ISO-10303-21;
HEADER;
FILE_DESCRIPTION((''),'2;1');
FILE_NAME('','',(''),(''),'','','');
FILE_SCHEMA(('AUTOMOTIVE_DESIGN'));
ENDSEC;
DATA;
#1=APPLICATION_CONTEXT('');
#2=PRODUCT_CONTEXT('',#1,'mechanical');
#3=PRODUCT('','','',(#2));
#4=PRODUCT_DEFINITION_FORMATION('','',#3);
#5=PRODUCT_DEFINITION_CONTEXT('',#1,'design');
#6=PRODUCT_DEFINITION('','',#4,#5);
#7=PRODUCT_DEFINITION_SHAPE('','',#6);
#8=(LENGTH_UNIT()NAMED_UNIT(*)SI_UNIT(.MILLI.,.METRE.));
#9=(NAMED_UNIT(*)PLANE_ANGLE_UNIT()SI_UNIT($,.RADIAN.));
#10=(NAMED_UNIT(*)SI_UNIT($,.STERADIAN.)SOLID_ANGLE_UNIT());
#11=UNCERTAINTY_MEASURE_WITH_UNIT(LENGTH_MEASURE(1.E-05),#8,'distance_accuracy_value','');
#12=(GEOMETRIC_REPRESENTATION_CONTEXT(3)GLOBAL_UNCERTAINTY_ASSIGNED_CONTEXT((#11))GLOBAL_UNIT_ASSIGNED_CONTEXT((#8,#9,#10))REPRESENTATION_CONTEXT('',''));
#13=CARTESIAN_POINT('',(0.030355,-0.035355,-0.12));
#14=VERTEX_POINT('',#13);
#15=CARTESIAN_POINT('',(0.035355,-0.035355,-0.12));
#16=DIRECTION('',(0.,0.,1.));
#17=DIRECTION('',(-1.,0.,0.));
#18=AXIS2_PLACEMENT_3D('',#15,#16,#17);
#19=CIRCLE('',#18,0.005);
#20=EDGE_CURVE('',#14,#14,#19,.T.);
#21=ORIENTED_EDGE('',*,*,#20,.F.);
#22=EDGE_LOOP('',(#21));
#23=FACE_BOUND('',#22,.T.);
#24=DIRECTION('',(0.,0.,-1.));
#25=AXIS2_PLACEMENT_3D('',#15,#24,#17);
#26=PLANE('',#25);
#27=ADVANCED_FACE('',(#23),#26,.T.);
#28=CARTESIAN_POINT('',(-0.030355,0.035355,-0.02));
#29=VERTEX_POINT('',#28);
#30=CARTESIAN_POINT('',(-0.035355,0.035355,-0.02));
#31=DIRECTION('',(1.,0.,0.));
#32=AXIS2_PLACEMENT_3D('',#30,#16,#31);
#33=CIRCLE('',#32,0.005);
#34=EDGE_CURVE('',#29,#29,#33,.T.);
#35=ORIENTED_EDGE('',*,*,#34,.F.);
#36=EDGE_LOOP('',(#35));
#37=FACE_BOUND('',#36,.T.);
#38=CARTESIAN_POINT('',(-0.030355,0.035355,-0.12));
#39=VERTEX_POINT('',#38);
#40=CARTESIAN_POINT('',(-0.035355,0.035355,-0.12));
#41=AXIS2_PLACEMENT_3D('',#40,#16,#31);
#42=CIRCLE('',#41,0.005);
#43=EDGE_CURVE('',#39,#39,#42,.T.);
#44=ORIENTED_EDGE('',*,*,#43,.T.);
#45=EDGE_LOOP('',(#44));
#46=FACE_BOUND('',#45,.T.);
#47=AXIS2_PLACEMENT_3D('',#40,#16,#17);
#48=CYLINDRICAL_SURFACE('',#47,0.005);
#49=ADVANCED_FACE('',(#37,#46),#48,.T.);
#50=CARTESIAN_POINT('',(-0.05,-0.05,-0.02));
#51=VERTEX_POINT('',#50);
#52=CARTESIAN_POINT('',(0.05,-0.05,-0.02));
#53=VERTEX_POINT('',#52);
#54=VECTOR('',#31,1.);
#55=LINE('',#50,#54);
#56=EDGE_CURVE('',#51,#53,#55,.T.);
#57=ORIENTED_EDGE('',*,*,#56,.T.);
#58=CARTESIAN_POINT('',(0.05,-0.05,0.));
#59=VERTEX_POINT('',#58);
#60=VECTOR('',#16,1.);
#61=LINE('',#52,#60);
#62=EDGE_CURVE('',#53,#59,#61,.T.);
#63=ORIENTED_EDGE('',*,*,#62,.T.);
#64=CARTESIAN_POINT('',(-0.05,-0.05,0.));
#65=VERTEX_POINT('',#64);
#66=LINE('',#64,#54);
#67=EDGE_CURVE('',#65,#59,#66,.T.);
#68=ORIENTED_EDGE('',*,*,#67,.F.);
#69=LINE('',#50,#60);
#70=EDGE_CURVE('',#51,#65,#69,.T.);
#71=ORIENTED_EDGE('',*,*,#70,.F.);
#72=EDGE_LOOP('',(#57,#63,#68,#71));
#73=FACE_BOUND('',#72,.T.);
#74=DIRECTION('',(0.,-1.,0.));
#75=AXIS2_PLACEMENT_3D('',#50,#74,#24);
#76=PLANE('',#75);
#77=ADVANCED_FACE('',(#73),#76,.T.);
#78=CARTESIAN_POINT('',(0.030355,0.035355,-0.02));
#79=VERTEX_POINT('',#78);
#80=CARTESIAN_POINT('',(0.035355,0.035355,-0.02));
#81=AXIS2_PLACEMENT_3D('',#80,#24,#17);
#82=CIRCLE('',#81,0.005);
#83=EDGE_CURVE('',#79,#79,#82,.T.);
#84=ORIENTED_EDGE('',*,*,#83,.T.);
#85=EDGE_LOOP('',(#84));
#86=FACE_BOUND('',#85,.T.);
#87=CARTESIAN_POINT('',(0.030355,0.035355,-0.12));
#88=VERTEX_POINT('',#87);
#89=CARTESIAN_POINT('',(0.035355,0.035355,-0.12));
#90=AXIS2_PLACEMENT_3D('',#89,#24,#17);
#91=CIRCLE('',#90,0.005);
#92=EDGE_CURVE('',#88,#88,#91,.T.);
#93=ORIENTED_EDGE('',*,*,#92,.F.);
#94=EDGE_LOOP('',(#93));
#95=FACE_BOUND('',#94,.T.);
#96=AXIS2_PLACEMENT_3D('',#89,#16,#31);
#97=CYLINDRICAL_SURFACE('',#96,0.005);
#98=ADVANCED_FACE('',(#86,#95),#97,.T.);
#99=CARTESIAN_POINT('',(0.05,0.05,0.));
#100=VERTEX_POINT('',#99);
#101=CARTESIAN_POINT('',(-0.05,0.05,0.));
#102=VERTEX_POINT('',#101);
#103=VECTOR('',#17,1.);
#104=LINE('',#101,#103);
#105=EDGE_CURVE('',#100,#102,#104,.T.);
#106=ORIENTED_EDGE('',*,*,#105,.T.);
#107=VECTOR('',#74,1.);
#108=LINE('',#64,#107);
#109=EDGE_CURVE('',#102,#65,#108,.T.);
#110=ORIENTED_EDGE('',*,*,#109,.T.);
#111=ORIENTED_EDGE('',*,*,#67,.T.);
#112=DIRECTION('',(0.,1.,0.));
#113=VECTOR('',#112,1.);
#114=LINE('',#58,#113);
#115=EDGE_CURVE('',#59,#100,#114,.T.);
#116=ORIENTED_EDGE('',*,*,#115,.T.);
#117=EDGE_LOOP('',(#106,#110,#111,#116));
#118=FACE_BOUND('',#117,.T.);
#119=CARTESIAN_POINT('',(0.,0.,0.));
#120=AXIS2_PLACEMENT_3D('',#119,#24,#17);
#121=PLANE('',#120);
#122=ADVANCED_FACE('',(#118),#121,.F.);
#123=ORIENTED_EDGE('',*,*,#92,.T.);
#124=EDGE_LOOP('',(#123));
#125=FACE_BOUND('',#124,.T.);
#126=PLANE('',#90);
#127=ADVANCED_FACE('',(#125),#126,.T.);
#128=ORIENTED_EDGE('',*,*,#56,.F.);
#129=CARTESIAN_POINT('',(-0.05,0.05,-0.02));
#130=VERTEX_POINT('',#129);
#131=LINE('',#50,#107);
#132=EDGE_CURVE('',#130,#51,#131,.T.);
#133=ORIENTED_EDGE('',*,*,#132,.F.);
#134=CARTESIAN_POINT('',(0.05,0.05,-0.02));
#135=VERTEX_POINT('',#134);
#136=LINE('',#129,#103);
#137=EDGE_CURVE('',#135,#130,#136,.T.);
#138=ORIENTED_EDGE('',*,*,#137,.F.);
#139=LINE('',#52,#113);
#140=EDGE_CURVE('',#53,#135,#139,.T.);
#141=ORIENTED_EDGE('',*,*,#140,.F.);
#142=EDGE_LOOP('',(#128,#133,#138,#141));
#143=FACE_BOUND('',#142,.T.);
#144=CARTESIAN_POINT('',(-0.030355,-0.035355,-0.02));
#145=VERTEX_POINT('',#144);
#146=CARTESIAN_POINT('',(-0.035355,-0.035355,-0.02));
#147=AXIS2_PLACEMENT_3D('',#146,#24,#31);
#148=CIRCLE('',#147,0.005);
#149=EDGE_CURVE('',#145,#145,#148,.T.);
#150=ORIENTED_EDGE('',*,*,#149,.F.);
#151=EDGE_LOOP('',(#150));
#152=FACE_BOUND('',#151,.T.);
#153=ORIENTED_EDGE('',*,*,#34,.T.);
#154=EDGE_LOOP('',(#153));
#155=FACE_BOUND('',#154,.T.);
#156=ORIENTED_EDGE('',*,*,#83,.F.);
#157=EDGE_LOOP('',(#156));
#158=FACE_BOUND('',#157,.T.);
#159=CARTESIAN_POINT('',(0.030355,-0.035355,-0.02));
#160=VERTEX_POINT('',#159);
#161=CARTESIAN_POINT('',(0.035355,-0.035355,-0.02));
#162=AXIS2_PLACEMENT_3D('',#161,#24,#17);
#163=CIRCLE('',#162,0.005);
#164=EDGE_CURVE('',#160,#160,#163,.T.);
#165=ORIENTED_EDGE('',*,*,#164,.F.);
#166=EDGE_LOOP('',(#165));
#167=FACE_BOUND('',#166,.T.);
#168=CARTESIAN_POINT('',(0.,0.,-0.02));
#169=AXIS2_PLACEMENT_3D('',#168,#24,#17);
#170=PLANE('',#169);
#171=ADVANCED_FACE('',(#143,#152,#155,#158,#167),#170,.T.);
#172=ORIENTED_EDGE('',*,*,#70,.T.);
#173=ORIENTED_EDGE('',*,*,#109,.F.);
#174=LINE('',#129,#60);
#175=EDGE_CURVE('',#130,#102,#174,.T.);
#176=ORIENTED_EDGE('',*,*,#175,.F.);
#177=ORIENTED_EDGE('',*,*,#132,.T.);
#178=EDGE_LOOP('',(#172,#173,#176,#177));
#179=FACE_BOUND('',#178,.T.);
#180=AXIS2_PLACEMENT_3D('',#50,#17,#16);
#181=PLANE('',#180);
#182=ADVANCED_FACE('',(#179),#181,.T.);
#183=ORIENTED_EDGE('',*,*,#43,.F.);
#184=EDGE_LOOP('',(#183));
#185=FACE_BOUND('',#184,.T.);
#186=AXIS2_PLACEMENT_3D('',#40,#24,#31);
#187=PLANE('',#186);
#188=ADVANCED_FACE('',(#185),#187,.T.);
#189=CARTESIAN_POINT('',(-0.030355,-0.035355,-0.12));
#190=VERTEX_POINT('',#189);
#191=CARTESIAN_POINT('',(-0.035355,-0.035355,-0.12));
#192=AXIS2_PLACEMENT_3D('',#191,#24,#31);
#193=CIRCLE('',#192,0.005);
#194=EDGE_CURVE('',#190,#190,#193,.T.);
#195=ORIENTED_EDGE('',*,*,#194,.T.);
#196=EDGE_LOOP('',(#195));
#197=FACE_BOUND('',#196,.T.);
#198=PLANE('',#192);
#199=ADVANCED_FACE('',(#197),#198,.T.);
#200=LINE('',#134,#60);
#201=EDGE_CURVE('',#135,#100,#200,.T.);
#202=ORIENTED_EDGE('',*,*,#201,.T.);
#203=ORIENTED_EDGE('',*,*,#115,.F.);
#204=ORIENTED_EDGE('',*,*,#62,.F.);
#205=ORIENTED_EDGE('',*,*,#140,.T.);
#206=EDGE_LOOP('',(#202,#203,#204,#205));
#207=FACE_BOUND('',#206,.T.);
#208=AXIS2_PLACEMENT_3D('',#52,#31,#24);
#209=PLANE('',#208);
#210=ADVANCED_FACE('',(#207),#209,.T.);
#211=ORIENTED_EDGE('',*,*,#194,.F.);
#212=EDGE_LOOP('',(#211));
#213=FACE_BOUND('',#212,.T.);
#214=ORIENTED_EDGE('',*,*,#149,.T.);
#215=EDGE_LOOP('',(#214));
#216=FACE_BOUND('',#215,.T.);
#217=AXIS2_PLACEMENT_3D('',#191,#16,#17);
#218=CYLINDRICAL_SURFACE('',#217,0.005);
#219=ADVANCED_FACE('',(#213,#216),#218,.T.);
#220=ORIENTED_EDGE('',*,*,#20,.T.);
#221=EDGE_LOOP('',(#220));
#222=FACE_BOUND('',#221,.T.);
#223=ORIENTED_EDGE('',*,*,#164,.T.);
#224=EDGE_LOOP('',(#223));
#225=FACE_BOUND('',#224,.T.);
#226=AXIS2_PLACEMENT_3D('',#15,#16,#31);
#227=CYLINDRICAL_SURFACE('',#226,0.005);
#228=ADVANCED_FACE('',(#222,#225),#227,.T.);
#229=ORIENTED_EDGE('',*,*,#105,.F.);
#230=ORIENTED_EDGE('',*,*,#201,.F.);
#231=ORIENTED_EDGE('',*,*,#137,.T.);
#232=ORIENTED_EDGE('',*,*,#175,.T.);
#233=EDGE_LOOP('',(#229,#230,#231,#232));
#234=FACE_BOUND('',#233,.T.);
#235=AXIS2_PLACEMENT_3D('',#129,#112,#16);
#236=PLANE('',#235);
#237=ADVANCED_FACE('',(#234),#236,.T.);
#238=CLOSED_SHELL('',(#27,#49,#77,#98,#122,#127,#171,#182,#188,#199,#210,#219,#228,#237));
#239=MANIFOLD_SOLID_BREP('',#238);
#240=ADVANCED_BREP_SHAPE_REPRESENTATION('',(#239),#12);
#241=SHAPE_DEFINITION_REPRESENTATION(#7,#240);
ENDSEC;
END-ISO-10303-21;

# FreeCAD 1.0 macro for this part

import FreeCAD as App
import Part
import Sketcher

V = App.Vector
Q = App.Units.Quantity


def add_polygon(sketch, points):
    """Adds a closed chain of lines whose ends are joined by coincident constraints."""
    first, n = sketch.GeometryCount, len(points)
    for a, b in zip(points, points[1:] + points[:1]):
        sketch.addGeometry(Part.LineSegment(App.Vector(*a, 0), App.Vector(*b, 0)), False)
    for i in range(n):
        sketch.addConstraint(Sketcher.Constraint("Coincident", first + i, 2, first + (i + 1) % n, 1))

doc = App.newDocument("Part")
params = doc.addObject("Spreadsheet::Sheet", "Params")
for row, (alias, value) in enumerate([
    ("sketch1_width", "0.1 mm"),
    ("pad1_length", "0.02 mm"),
    ("sketch2_diameter", "0.01 mm"),
    ("pad2_length", "0.1 mm"),
    ("sketch3_diameter", "0.01 mm"),
    ("pad3_length", "0.1 mm"),
], start=1):
    params.set(f"A{row}", alias)
    params.set(f"B{row}", "=" + value)
    params.setAlias(f"B{row}", alias)

body = doc.addObject("PartDesign::Body", "Body")

# Sketch on XY plane
sketch1 = body.newObject("Sketcher::SketchObject", "Sketch")
sketch1.AttachmentSupport = (doc.getObject("XY_Plane"), [""])
sketch1.MapMode = "FlatFace"
add_polygon(sketch1, [(-0.05, 0.05), (-0.05, -0.05), (0.05, -0.05), (0.05, 0.05)])  # lines 0-3
sketch1.addConstraint([
    Sketcher.Constraint("Vertical", 0),
    Sketcher.Constraint("Horizontal", 1),
    Sketcher.Constraint("Vertical", 2),
    Sketcher.Constraint("Horizontal", 3),
    Sketcher.Constraint("Symmetric", 0, 2, 2, 2, -1, 1),
    Sketcher.Constraint("Equal", 3, 0),
    Sketcher.Constraint("DistanceX", 1, 1, 1, 2, Q("0.1 mm")),
])
sketch1.setExpression("Constraints[10]", "Params.sketch1_width")
pad1 = body.newObject("PartDesign::Pad", "Pad")
pad1.Profile = sketch1
pad1.setExpression("Length", "Params.pad1_length")
pad1.Reversed = True

# Sketch on XY plane
sketch2 = body.newObject("Sketcher::SketchObject", "Sketch001")
sketch2.AttachmentSupport = (doc.getObject("XY_Plane"), [""])
sketch2.MapMode = "FlatFace"
sketch2.AttachmentOffset = App.Placement(V(0, 0, -0.02), App.Rotation())
sketch2.addGeometry(Part.Circle(V(0.035, 0.035, 0), V(0, 0, 1), 0.005), False)
sketch2.addConstraint([
    Sketcher.Constraint("Diameter", 0, Q("0.01 mm")),
    Sketcher.Constraint("DistanceX", -1, 1, 0, 3, Q("0.035355 mm")),
    Sketcher.Constraint("DistanceY", -1, 1, 0, 3, Q("0.035355 mm")),
])
sketch2.setExpression("Constraints[0]", "Params.sketch2_diameter")
pad2 = body.newObject("PartDesign::Pad", "Pad001")
pad2.Profile = sketch2
pad2.setExpression("Length", "Params.pad2_length")
pad2.Reversed = True
doc.recompute()

mirrored = body.newObject("PartDesign::Mirrored", "Mirrored")
mirrored.Originals = [pad2]
mirrored.MirrorPlane = (doc.getObject("YZ_Plane"), [""])
body.Tip = mirrored
doc.recompute()

mirrored2 = body.newObject("PartDesign::Mirrored", "Mirrored001")
mirrored2.Originals = [pad2]
mirrored2.MirrorPlane = (doc.getObject("XZ_Plane"), [""])
body.Tip = mirrored2

# Sketch on XY plane
sketch3 = body.newObject("Sketcher::SketchObject", "Sketch002")
sketch3.AttachmentSupport = (doc.getObject("XY_Plane"), [""])
sketch3.MapMode = "FlatFace"
sketch3.AttachmentOffset = App.Placement(V(0, 0, -0.02), App.Rotation())
sketch3.addGeometry(Part.Circle(V(-0.035, -0.035, 0), V(0, 0, 1), 0.005), False)
sketch3.addConstraint([
    Sketcher.Constraint("Diameter", 0, Q("0.01 mm")),
    Sketcher.Constraint("DistanceX", 0, 3, -1, 1, Q("0.035355 mm")),
    Sketcher.Constraint("DistanceY", 0, 3, -1, 1, Q("0.035355 mm")),
])
sketch3.setExpression("Constraints[0]", "Params.sketch3_diameter")
pad3 = body.newObject("PartDesign::Pad", "Pad002")
pad3.Profile = sketch3
pad3.setExpression("Length", "Params.pad3_length")
pad3.Reversed = True

doc.recompute()
